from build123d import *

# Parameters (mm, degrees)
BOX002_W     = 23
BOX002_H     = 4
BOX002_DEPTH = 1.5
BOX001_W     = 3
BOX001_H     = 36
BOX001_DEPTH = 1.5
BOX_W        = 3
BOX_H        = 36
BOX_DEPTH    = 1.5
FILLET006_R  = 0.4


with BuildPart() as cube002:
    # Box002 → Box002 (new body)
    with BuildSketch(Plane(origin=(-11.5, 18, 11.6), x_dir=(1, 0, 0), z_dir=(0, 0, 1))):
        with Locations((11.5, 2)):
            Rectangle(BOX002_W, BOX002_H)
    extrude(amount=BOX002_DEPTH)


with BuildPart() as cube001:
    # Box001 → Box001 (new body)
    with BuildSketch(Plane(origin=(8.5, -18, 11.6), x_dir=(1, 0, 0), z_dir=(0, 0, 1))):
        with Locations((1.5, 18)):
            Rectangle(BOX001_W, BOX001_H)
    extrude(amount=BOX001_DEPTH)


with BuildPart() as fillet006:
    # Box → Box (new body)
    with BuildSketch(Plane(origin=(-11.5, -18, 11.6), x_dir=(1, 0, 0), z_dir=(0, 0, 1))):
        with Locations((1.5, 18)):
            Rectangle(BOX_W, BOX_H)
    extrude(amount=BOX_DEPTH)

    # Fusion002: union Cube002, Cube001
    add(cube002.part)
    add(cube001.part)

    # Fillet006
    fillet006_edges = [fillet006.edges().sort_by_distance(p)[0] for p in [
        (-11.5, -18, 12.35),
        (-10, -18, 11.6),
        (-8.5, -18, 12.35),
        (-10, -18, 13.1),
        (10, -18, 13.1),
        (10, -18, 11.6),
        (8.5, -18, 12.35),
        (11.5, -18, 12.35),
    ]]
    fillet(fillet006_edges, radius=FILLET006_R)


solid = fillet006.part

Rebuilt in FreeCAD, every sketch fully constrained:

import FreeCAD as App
import Part
import Sketcher

V = App.Vector


def edges_at(feature, points):
    """Names of the edges that pass closest to the given points."""
    edges = feature.Shape.Edges
    near = lambda p: min(range(len(edges)), key=lambda i: edges[i].distToShape(Part.Vertex(*p))[0])
    return sorted({f"Edge{near(p) + 1}" for p in points})


def add_polygon(sketch, points):
    """Adds a closed chain of lines whose ends are joined by coincident constraints."""
    first, n = sketch.GeometryCount, len(points)
    for a, b in zip(points, points[1:] + points[:1]):
        sketch.addGeometry(Part.LineSegment(App.Vector(*a, 0), App.Vector(*b, 0)), False)
    for i in range(n):
        sketch.addConstraint(Sketcher.Constraint("Coincident", first + i, 2, first + (i + 1) % n, 1))

doc = App.newDocument("Part")
body = doc.addObject("PartDesign::Body", "Body")

sketch1 = body.newObject("Sketcher::SketchObject", "Sketch")
sketch1.AttachmentSupport = (doc.getObject("XY_Plane"), [""])
sketch1.MapMode = "FlatFace"
sketch1.AttachmentOffset = App.Placement(V(0, 0, 11.6), App.Rotation())
add_polygon(sketch1, [(-11.5, 22), (-11.5, 18), (11.5, 18), (11.5, 22)])
sketch1.addConstraint([
    Sketcher.Constraint("Vertical", 0),
    Sketcher.Constraint("Horizontal", 1),
    Sketcher.Constraint("Vertical", 2),
    Sketcher.Constraint("Horizontal", 3),
    Sketcher.Constraint("DistanceX", 1, 1, 1, 2, 23.0),
    Sketcher.Constraint("DistanceY", 0, 2, 0, 1, 4.0),
    Sketcher.Constraint("DistanceY", -1, 1, 0, 2, 18.0),
    Sketcher.Constraint("DistanceX", 0, 2, -1, 1, 11.5),
])
pad1 = body.newObject("PartDesign::Pad", "Pad")
pad1.Profile = sketch1
pad1.Length = 1.5
body2 = doc.addObject("PartDesign::Body", "Body001")

sketch2 = body2.newObject("Sketcher::SketchObject", "Sketch001")
sketch2.AttachmentSupport = (doc.getObject("XY_Plane001"), [""])
sketch2.MapMode = "FlatFace"
sketch2.AttachmentOffset = App.Placement(V(0, 0, 11.6), App.Rotation())
add_polygon(sketch2, [(8.5, 18), (8.5, -18), (11.5, -18), (11.5, 18)])
sketch2.addConstraint([
    Sketcher.Constraint("Vertical", 0),
    Sketcher.Constraint("Horizontal", 1),
    Sketcher.Constraint("Vertical", 2),
    Sketcher.Constraint("Horizontal", 3),
    Sketcher.Constraint("DistanceX", 1, 1, 1, 2, 3.0),
    Sketcher.Constraint("DistanceY", 0, 2, 0, 1, 36.0),
    Sketcher.Constraint("DistanceY", 0, 2, -1, 1, 18.0),
    Sketcher.Constraint("DistanceX", -1, 1, 0, 2, 8.5),
])
pad2 = body2.newObject("PartDesign::Pad", "Pad001")
pad2.Profile = sketch2
pad2.Length = 1.5
body3 = doc.addObject("PartDesign::Body", "Body002")

sketch3 = body3.newObject("Sketcher::SketchObject", "Sketch002")
sketch3.AttachmentSupport = (doc.getObject("XY_Plane002"), [""])
sketch3.MapMode = "FlatFace"
sketch3.AttachmentOffset = App.Placement(V(0, 0, 11.6), App.Rotation())
add_polygon(sketch3, [(-11.5, 18), (-11.5, -18), (-8.5, -18), (-8.5, 18)])
sketch3.addConstraint([
    Sketcher.Constraint("Vertical", 0),
    Sketcher.Constraint("Horizontal", 1),
    Sketcher.Constraint("Vertical", 2),
    Sketcher.Constraint("Horizontal", 3),
    Sketcher.Constraint("DistanceX", 1, 1, 1, 2, 3.0),
    Sketcher.Constraint("DistanceY", 0, 2, 0, 1, 36.0),
    Sketcher.Constraint("DistanceY", 0, 2, -1, 1, 18.0),
    Sketcher.Constraint("DistanceX", 0, 2, -1, 1, 11.5),
])
pad3 = body3.newObject("PartDesign::Pad", "Pad002")
pad3.Profile = sketch3
pad3.Length = 1.5
doc.recompute()

boolean = body3.newObject("PartDesign::Boolean", "Boolean")
boolean.Type = "Fuse"
boolean.addObjects([body])
doc.recompute()

boolean2 = body3.newObject("PartDesign::Boolean", "Boolean001")
boolean2.Type = "Fuse"
boolean2.addObjects([body2])
doc.recompute()

fillet = body3.newObject("PartDesign::Fillet", "Fillet")
fillet.Base = (boolean2, edges_at(boolean2, [
    (-11.5, -18, 12.35),
    (-10, -18, 11.6),
    (-8.5, -18, 12.35),
    (-10, -18, 13.1),
    (10, -18, 13.1),
    (10, -18, 11.6),
    (8.5, -18, 12.35),
    (11.5, -18, 12.35),
]))
fillet.Radius = 0.4

doc.recompute()
